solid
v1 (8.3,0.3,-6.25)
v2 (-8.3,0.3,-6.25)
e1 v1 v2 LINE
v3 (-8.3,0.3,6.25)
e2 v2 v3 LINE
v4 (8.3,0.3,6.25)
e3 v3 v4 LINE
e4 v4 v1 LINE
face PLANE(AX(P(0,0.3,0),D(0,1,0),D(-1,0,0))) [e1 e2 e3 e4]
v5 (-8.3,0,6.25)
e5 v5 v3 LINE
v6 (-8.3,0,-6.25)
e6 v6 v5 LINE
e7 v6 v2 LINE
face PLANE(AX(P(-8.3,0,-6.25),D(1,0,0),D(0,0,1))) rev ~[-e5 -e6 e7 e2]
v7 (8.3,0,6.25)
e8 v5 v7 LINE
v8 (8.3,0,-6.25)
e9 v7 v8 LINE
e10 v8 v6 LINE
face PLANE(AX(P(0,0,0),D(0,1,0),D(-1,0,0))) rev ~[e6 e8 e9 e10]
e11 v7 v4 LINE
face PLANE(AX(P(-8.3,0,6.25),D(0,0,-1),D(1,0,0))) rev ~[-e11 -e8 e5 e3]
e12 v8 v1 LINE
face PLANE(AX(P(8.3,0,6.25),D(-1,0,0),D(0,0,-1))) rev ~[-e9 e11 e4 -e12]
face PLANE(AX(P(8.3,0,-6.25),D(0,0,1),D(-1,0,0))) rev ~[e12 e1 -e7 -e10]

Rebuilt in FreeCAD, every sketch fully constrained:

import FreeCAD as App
import Part
import Sketcher

V = App.Vector

doc = App.newDocument("Part")
params = doc.addObject("Spreadsheet::Sheet", "Params")
for row, (alias, value) in enumerate([
    ("sketch1_width", "16.6 mm"),
    ("sketch1_height", "12.5 mm"),
    ("pad1_length", "0.3 mm"),
], start=1):
    params.set(f"A{row}", alias)
    params.set(f"B{row}", "=" + value)
    params.setAlias(f"B{row}", alias)

body = doc.addObject("PartDesign::Body", "Body")

sketch1 = body.newObject("Sketcher::SketchObject", "Sketch")
sketch1.AttachmentSupport = (doc.getObject("XZ_Plane"), [""])
sketch1.MapMode = "FlatFace"
sketch1.addGeometry([
    Part.LineSegment(V(-8.3, -6.25, 0), V(-8.3, 6.25, 0)),
    Part.LineSegment(V(-8.3, 6.25, 0), V(8.3, 6.25, 0)),
    Part.LineSegment(V(8.3, 6.25, 0), V(8.3, -6.25, 0)),
    Part.LineSegment(V(8.3, -6.25, 0), V(-8.3, -6.25, 0)),
], False)
sketch1.addConstraint([
    Sketcher.Constraint("Coincident", 0, 2, 1, 1),
    Sketcher.Constraint("Coincident", 1, 2, 2, 1),
    Sketcher.Constraint("Coincident", 2, 2, 3, 1),
    Sketcher.Constraint("Coincident", 3, 2, 0, 1),
    Sketcher.Constraint("Vertical", 0),
    Sketcher.Constraint("Horizontal", 1),
    Sketcher.Constraint("Vertical", 2),
    Sketcher.Constraint("Horizontal", 3),
    Sketcher.Constraint("Symmetric", 0, 2, 2, 2, -1, 1),
    Sketcher.Constraint("DistanceX", 1, 1, 1, 2, 16.6),
    Sketcher.Constraint("DistanceY", 0, 1, 0, 2, 12.5),
])
sketch1.setExpression("Constraints[9]", "Params.sketch1_width")
sketch1.setExpression("Constraints[10]", "Params.sketch1_height")
pad1 = body.newObject("PartDesign::Pad", "Pad")
pad1.Profile = sketch1
pad1.setExpression("Length", "Params.pad1_length")
pad1.Reversed = True

doc.recompute()
